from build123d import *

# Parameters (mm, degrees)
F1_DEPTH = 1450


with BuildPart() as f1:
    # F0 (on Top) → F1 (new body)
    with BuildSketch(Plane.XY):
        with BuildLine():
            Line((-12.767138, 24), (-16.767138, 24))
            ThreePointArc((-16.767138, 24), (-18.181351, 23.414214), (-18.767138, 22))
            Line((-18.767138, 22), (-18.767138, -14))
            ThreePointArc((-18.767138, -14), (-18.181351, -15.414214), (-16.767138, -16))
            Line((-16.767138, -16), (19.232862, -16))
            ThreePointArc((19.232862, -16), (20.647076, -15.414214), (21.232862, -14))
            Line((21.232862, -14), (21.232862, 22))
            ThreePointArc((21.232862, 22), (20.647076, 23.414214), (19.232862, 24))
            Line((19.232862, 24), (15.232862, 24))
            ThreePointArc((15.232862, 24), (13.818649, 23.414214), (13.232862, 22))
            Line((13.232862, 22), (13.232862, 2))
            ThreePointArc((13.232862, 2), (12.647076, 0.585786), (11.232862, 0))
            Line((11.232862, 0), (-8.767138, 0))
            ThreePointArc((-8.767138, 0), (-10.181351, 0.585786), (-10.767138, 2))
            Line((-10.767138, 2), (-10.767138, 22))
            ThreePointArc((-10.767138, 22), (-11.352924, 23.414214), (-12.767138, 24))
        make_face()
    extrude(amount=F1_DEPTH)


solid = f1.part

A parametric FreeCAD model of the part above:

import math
import FreeCAD as App
import Part
import Sketcher
Q = App.Units.Quantity

doc = App.newDocument("Part")
body = doc.addObject("PartDesign::Body", "Body")

# Sketch on XY plane
sketch1 = doc.addObject("Sketcher::SketchObject", "Sketch")
body.addObject(sketch1)
sketch1.AttachmentSupport = (doc.XY_Plane, [""])
sketch1.MapMode = "FlatFace"
sketch1.addGeometry(Part.LineSegment(App.Vector(-12.8, 24, 0), App.Vector(-16.8, 24, 0)), False)
sketch1.addGeometry(Part.ArcOfCircle(Part.Circle(App.Vector(-16.8, 22, 0), App.Vector(0, 0, 1), 2), math.radians(90), math.radians(180)), False)
sketch1.addGeometry(Part.LineSegment(App.Vector(-18.8, 22, 0), App.Vector(-18.8, -14, 0)), False)
sketch1.addGeometry(Part.ArcOfCircle(Part.Circle(App.Vector(-16.8, -14, 0), App.Vector(0, 0, 1), 2), math.radians(-180), math.radians(-90)), False)
sketch1.addGeometry(Part.LineSegment(App.Vector(-16.8, -16, 0), App.Vector(19.2, -16, 0)), False)
sketch1.addGeometry(Part.ArcOfCircle(Part.Circle(App.Vector(19.2, -14, 0), App.Vector(0, 0, 1), 2), math.radians(-90), math.radians(0)), False)
sketch1.addGeometry(Part.LineSegment(App.Vector(21.2, -14, 0), App.Vector(21.2, 22, 0)), False)
sketch1.addGeometry(Part.ArcOfCircle(Part.Circle(App.Vector(19.2, 22, 0), App.Vector(0, 0, 1), 2), math.radians(0), math.radians(90)), False)
sketch1.addGeometry(Part.LineSegment(App.Vector(19.2, 24, 0), App.Vector(15.2, 24, 0)), False)
sketch1.addGeometry(Part.ArcOfCircle(Part.Circle(App.Vector(15.2, 22, 0), App.Vector(0, 0, 1), 2), math.radians(90), math.radians(180)), False)
sketch1.addGeometry(Part.LineSegment(App.Vector(13.2, 22, 0), App.Vector(13.2, 2, 0)), False)
sketch1.addGeometry(Part.ArcOfCircle(Part.Circle(App.Vector(11.2, 2, 0), App.Vector(0, 0, 1), 2), math.radians(-90), math.radians(0)), False)
sketch1.addGeometry(Part.LineSegment(App.Vector(11.2, 0, 0), App.Vector(-8.8, 0, 0)), False)
sketch1.addGeometry(Part.ArcOfCircle(Part.Circle(App.Vector(-8.8, 2, 0), App.Vector(0, 0, 1), 2), math.radians(-180), math.radians(-90)), False)
sketch1.addGeometry(Part.LineSegment(App.Vector(-10.8, 2, 0), App.Vector(-10.8, 22, 0)), False)
sketch1.addGeometry(Part.ArcOfCircle(Part.Circle(App.Vector(-12.8, 22, 0), App.Vector(0, 0, 1), 2), math.radians(0), math.radians(90)), False)
sketch1.addConstraint(Sketcher.Constraint("Tangent", 0, 2, 1, 1))
sketch1.addConstraint(Sketcher.Constraint("Tangent", 1, 2, 2, 1))
sketch1.addConstraint(Sketcher.Constraint("Tangent", 2, 2, 3, 1))
sketch1.addConstraint(Sketcher.Constraint("Tangent", 3, 2, 4, 1))
sketch1.addConstraint(Sketcher.Constraint("Tangent", 4, 2, 5, 1))
sketch1.addConstraint(Sketcher.Constraint("Tangent", 5, 2, 6, 1))
sketch1.addConstraint(Sketcher.Constraint("Tangent", 6, 2, 7, 1))
sketch1.addConstraint(Sketcher.Constraint("Tangent", 7, 2, 8, 1))
sketch1.addConstraint(Sketcher.Constraint("Tangent", 8, 2, 9, 1))
sketch1.addConstraint(Sketcher.Constraint("Tangent", 9, 2, 10, 1))
sketch1.addConstraint(Sketcher.Constraint("Tangent", 10, 2, 11, 2))
sketch1.addConstraint(Sketcher.Constraint("Tangent", 11, 1, 12, 1))
sketch1.addConstraint(Sketcher.Constraint("Tangent", 12, 2, 13, 2))
sketch1.addConstraint(Sketcher.Constraint("Tangent", 13, 1, 14, 1))
sketch1.addConstraint(Sketcher.Constraint("Tangent", 14, 2, 15, 1))
sketch1.addConstraint(Sketcher.Constraint("Tangent", 15, 2, 0, 1))
sketch1.addConstraint(Sketcher.Constraint("Horizontal", 0))
sketch1.addConstraint(Sketcher.Constraint("Vertical", 2))
sketch1.addConstraint(Sketcher.Constraint("Horizontal", 4))
sketch1.addConstraint(Sketcher.Constraint("Vertical", 6))
sketch1.addConstraint(Sketcher.Constraint("Horizontal", 8))
sketch1.addConstraint(Sketcher.Constraint("Vertical", 10))
sketch1.addConstraint(Sketcher.Constraint("Horizontal", 12))
sketch1.addConstraint(Sketcher.Constraint("Vertical", 14))
sketch1.addConstraint(Sketcher.Constraint("Equal", 1, 3))
sketch1.addConstraint(Sketcher.Constraint("Equal", 3, 5))
sketch1.addConstraint(Sketcher.Constraint("Equal", 5, 7))
sketch1.addConstraint(Sketcher.Constraint("Equal", 7, 9))
sketch1.addConstraint(Sketcher.Constraint("Equal", 9, 11))
sketch1.addConstraint(Sketcher.Constraint("Equal", 11, 13))
sketch1.addConstraint(Sketcher.Constraint("Equal", 13, 15))
sketch1.addConstraint(Sketcher.Constraint("PointOnObject", 11, 1, -1))
sketch1.addConstraint(Sketcher.Constraint("Horizontal", 1, 3, 7, 3))
sketch1.addConstraint(Sketcher.Constraint("Equal", 0, 8))
sketch1.addConstraint(Sketcher.Constraint("Equal", 4, 2))
sketch1.addConstraint(Sketcher.Constraint("Equal", 12, 10))
sketch1.addConstraint(Sketcher.Constraint("Radius", 1, Q("2 mm")))
sketch1.addConstraint(Sketcher.Constraint("DistanceX", 0, 2, 0, 1, Q("4 mm")))
sketch1.addConstraint(Sketcher.Constraint("DistanceX", 4, 1, 4, 2, Q("36 mm")))
sketch1.addConstraint(Sketcher.Constraint("DistanceX", -1, 1, 5, 2, Q("21.232862 mm")))
pad1 = doc.addObject("PartDesign::Pad", "Pad")
body.addObject(pad1)
pad1.Profile = sketch1
pad1.Length = 1450

doc.recompute()
